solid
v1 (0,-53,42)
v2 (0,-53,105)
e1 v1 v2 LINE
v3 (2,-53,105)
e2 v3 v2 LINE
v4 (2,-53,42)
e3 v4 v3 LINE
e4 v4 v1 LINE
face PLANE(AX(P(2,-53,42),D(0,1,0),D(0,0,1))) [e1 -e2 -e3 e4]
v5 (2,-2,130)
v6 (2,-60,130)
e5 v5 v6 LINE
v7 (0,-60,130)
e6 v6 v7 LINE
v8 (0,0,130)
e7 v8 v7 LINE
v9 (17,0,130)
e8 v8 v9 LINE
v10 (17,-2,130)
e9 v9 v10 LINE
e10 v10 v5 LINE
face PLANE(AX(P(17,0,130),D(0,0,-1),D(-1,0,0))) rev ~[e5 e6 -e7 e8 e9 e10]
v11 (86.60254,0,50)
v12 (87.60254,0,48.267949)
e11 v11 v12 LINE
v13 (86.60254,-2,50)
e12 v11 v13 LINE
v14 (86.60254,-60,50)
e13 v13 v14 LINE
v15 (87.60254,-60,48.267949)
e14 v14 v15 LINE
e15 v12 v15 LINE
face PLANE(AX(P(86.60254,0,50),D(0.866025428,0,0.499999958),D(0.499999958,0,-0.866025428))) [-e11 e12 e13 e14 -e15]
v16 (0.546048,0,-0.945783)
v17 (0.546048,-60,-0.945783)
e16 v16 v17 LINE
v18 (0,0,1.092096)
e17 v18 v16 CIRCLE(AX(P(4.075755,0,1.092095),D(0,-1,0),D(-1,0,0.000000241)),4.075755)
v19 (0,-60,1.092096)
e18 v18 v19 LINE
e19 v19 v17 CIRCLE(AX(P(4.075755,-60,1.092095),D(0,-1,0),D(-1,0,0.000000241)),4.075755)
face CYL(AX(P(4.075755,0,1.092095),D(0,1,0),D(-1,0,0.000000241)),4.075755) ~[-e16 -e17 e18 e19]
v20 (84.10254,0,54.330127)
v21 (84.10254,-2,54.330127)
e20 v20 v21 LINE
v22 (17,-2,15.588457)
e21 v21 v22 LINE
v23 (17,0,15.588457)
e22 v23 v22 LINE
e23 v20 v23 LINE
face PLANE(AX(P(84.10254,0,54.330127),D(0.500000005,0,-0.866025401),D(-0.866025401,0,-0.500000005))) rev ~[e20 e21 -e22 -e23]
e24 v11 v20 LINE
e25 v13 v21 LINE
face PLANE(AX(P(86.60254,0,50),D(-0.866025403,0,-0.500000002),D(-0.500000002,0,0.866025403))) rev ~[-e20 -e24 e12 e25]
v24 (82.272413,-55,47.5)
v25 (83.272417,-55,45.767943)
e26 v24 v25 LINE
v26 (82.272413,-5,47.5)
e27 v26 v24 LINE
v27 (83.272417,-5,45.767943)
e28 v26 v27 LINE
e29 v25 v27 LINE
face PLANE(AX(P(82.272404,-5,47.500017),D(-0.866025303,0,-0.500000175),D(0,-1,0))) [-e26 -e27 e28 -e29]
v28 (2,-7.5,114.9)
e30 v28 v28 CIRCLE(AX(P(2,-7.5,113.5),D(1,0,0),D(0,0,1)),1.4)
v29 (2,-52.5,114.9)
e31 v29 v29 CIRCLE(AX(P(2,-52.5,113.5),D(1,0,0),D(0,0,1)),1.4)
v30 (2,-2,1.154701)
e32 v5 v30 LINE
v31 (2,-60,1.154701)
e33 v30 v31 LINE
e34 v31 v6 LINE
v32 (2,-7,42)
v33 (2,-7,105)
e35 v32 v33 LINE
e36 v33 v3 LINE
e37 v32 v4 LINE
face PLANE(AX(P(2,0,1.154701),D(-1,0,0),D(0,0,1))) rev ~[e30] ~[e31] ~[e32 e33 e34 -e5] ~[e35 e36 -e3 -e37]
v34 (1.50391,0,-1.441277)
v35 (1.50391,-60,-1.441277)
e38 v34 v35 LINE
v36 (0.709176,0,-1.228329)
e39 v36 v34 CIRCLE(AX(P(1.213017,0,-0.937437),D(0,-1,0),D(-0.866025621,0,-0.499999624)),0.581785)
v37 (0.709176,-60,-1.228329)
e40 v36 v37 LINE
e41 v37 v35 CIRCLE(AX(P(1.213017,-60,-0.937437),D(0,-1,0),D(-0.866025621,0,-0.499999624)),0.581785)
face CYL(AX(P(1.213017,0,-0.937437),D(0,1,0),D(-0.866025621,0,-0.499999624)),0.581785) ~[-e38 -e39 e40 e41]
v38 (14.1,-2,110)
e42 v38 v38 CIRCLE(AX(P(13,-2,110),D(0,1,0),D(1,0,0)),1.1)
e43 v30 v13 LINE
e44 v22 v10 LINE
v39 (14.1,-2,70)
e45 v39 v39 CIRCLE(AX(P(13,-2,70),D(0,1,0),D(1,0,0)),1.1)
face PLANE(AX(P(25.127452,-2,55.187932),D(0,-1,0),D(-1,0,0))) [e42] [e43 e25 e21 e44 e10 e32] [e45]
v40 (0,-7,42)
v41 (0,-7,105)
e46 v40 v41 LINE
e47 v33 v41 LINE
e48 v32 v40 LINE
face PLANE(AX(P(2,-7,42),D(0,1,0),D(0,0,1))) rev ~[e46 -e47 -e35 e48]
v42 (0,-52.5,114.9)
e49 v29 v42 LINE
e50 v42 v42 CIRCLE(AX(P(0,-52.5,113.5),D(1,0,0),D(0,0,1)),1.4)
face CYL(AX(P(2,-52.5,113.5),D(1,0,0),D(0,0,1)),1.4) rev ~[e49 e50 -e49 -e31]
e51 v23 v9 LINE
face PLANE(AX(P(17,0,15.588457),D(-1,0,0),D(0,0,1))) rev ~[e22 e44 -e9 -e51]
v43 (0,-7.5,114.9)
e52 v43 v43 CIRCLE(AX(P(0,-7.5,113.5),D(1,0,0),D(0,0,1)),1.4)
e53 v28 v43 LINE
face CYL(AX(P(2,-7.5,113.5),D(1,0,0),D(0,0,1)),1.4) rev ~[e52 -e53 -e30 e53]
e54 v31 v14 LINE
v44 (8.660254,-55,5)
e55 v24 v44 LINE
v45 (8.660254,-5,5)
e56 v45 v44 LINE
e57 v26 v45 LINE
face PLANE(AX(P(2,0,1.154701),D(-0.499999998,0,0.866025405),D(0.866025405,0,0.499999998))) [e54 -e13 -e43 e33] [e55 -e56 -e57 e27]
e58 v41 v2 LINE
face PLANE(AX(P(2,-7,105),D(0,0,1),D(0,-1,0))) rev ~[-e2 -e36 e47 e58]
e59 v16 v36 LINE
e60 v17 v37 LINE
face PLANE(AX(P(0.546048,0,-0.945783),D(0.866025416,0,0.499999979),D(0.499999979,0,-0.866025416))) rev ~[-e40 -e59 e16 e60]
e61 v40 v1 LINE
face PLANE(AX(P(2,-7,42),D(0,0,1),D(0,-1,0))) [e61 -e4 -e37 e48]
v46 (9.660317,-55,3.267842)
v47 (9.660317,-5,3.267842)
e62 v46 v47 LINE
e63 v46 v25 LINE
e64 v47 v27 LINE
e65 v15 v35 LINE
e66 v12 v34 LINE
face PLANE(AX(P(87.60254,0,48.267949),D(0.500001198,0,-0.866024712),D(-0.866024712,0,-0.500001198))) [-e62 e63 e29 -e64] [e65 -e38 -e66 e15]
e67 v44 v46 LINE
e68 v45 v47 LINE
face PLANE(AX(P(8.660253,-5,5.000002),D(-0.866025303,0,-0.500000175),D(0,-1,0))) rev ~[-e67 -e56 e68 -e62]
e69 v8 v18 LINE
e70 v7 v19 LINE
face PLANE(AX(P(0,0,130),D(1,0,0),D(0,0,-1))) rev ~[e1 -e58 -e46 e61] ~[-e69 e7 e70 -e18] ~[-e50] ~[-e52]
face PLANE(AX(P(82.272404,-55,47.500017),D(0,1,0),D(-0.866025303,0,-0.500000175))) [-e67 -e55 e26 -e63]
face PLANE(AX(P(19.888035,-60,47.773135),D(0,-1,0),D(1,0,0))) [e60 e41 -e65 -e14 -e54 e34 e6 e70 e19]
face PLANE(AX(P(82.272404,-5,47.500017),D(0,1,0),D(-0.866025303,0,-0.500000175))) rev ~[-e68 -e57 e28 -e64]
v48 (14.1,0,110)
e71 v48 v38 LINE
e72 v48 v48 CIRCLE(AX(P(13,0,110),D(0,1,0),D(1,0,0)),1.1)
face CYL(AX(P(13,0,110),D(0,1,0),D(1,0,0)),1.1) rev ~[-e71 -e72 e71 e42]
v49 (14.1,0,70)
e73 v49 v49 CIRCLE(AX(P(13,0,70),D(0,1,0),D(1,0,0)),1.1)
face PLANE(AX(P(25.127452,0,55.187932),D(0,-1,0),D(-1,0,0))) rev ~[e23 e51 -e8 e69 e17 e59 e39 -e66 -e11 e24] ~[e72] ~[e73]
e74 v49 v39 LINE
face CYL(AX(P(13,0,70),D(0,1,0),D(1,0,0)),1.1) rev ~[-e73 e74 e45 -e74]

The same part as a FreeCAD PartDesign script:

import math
import FreeCAD as App
import Part
import Sketcher
from FreeCAD import Vector
Q = App.Units.Quantity

doc = App.newDocument("Part")
body = doc.addObject("PartDesign::Body", "Body")

sketch1 = body.newObject("Sketcher::SketchObject", "Sketch")
sketch1.AttachmentSupport = (doc.getObject("XZ_Plane"), [""])
sketch1.MapMode = "FlatFace"
sketch1.addGeometry([
    Part.LineSegment(Vector(2, 130, 0), Vector(0, 130, 0)),
    Part.LineSegment(Vector(0, 130, 0), Vector(0, 1.092096, 0)),
    Part.ArcOfCircle(Part.Circle(Vector(4.075755, 1.092095, 0), Vector(0, 0, 1), 4.075755), math.radians(179.999986), math.radians(210.000012)),
    Part.LineSegment(Vector(0.546048, -0.945783, 0), Vector(0.709176, -1.228329, 0)),
    Part.ArcOfCircle(Part.Circle(Vector(1.213017, -0.937437, 0), Vector(0, 0, 1), 0.581785), math.radians(-150.000025), math.radians(-59.99993)),
    Part.LineSegment(Vector(1.50391, -1.441277, 0), Vector(87.60254, 48.267949, 0)),
    Part.LineSegment(Vector(87.60254, 48.267949, 0), Vector(86.60254, 50, 0)),
    Part.LineSegment(Vector(86.60254, 50, 0), Vector(2, 1.154701, 0)),
    Part.LineSegment(Vector(2, 1.154701, 0), Vector(2, 130, 0)),
], False)
sketch1.addConstraint([
    Sketcher.Constraint("Coincident", 0, 2, 1, 1),
    Sketcher.Constraint("Coincident", 1, 2, 2, 1),
    Sketcher.Constraint("Coincident", 2, 2, 3, 1),
    Sketcher.Constraint("Coincident", 3, 2, 4, 1),
    Sketcher.Constraint("Coincident", 4, 2, 5, 1),
    Sketcher.Constraint("Coincident", 5, 2, 6, 1),
    Sketcher.Constraint("Coincident", 6, 2, 7, 1),
    Sketcher.Constraint("Coincident", 7, 2, 8, 1),
    Sketcher.Constraint("Coincident", 8, 2, 0, 1),
    Sketcher.Constraint("Horizontal", 0),
    Sketcher.Constraint("Vertical", 1),
    Sketcher.Constraint("Vertical", 8),
    Sketcher.Constraint("PointOnObject", 0, 2, -2),
    Sketcher.Constraint("DistanceX", 0, 2, 0, 1, Q("2 mm")),
    Sketcher.Constraint("Distance", 6, Q("2 mm")),
    Sketcher.Constraint("DistanceY", -1, 1, 0, 2, Q("130 mm")),
    Sketcher.Constraint("DistanceY", -1, 1, 6, 2, Q("50 mm")),
    Sketcher.Constraint("DistanceX", 6, 2, 5, 2, Q("1 mm")),
    Sketcher.Constraint("DistanceY", 8, 1, 8, 2, Q("128.845299 mm")),
    Sketcher.Constraint("Radius", 2, Q("4.075755 mm")),
    Sketcher.Constraint("Radius", 4, Q("0.581785 mm")),
    Sketcher.Constraint("Distance", 7, Q("97.690598 mm")),
    Sketcher.Constraint("DistanceY", 1, 2, 1, 1, Q("128.907904 mm")),
    Sketcher.Constraint("DistanceX", -1, 1, 2, 2, Q("0.546048 mm")),
    Sketcher.Constraint("DistanceY", 3, 2, -1, 1, Q("1.228329 mm")),
    Sketcher.Constraint("DistanceX", -1, 1, 4, 2, Q("1.50391 mm")),
    Sketcher.Constraint("DistanceY", 4, 3, 2, 3, Q("2.029532 mm")),
    Sketcher.Constraint("DistanceX", 2, 2, 4, 3, Q("0.666969 mm")),
    Sketcher.Constraint("DistanceY", 2, 2, 1, 2, Q("2.037879 mm")),
])
pad1 = body.newObject("PartDesign::Pad", "Pad")
pad1.Profile = sketch1
pad1.Length = 60

sketch2 = body.newObject("Sketcher::SketchObject", "Sketch001")
sketch2.AttachmentSupport = (doc.getObject("YZ_Plane"), [""])
sketch2.MapMode = "FlatFace"
sketch2.AttachmentOffset = App.Placement(Vector(0, 0, 2), App.Rotation())
sketch2.addGeometry([
    Part.Circle(Vector(-52.5, 113.5, 0), Vector(0, 0, 1), 1.4),
    Part.Circle(Vector(-7.5, 113.5, 0), Vector(0, 0, 1), 1.4),
    Part.LineSegment(Vector(-53, 42, 0), Vector(-7, 42, 0)),
    Part.LineSegment(Vector(-7, 42, 0), Vector(-7, 105, 0)),
    Part.LineSegment(Vector(-7, 105, 0), Vector(-53, 105, 0)),
    Part.LineSegment(Vector(-53, 105, 0), Vector(-53, 42, 0)),
], False)
sketch2.addConstraint([
    Sketcher.Constraint("Coincident", 2, 2, 3, 1),
    Sketcher.Constraint("Coincident", 3, 2, 4, 1),
    Sketcher.Constraint("Coincident", 4, 2, 5, 1),
    Sketcher.Constraint("Coincident", 5, 2, 2, 1),
    Sketcher.Constraint("Horizontal", 2),
    Sketcher.Constraint("Vertical", 3),
    Sketcher.Constraint("Horizontal", 4),
    Sketcher.Constraint("Vertical", 5),
    Sketcher.Constraint("Equal", 0, 1),
    Sketcher.Constraint("Horizontal", 0, 3, 1, 3),
    Sketcher.Constraint("Diameter", 0, Q("2.8 mm")),
    Sketcher.Constraint("DistanceX", 2, 1, 2, 2, Q("46 mm")),
    Sketcher.Constraint("DistanceY", 3, 1, 3, 2, Q("63 mm")),
    Sketcher.Constraint("DistanceX", 2, 2, -1, 1, Q("7 mm")),
    Sketcher.Constraint("DistanceY", -1, 1, 2, 2, Q("42 mm")),
    Sketcher.Constraint("DistanceX", 0, 3, 1, 3, Q("45 mm")),
    Sketcher.Constraint("DistanceX", 0, 3, -1, 1, Q("52.5 mm")),
    Sketcher.Constraint("DistanceY", -1, 1, 0, 3, Q("113.5 mm")),
])
pocket1 = body.newObject("PartDesign::Pocket", "Pocket")
pocket1.Profile = sketch2
pocket1.Length = 2

sketch3 = body.newObject("Sketcher::SketchObject", "Sketch002")
sketch3.Placement = App.Placement(Vector(0, 0, 0), App.Rotation(Vector(-0.866025303, 0, -0.500000175), Vector(0, -1, 0), Vector(-0.500000175, 0, 0.866025303), "ZXY"))
sketch3.addGeometry([
    Part.LineSegment(Vector(-95, 55, 0), Vector(-95, 5, 0)),
    Part.LineSegment(Vector(-95, 5, 0), Vector(-10, 5, 0)),
    Part.LineSegment(Vector(-10, 5, 0), Vector(-10, 55, 0)),
    Part.LineSegment(Vector(-10, 55, 0), Vector(-95, 55, 0)),
], False)
sketch3.addConstraint([
    Sketcher.Constraint("Coincident", 0, 2, 1, 1),
    Sketcher.Constraint("Coincident", 1, 2, 2, 1),
    Sketcher.Constraint("Coincident", 2, 2, 3, 1),
    Sketcher.Constraint("Coincident", 3, 2, 0, 1),
    Sketcher.Constraint("Vertical", 0),
    Sketcher.Constraint("Horizontal", 1),
    Sketcher.Constraint("Vertical", 2),
    Sketcher.Constraint("Horizontal", 3),
    Sketcher.Constraint("DistanceX", 1, 1, 1, 2, Q("85 mm")),
    Sketcher.Constraint("DistanceY", 0, 2, 0, 1, Q("50 mm")),
    Sketcher.Constraint("DistanceX", 0, 2, -1, 1, Q("95 mm")),
    Sketcher.Constraint("DistanceY", -1, 1, 0, 2, Q("5 mm")),
])
pocket2 = body.newObject("PartDesign::Pocket", "Pocket001")
pocket2.Profile = sketch3
pocket2.Length = 2.1

sketch4 = body.newObject("Sketcher::SketchObject", "Sketch003")
sketch4.AttachmentSupport = (doc.getObject("XZ_Plane"), [""])
sketch4.MapMode = "FlatFace"
sketch4.addGeometry([
    Part.LineSegment(Vector(86.60254, 50, 0), Vector(2, 1.154701, 0)),
    Part.LineSegment(Vector(2, 1.154701, 0), Vector(2, 130, 0)),
    Part.LineSegment(Vector(2, 130, 0), Vector(17, 130, 0)),
    Part.LineSegment(Vector(17, 130, 0), Vector(17, 15.588457, 0)),
    Part.LineSegment(Vector(17, 15.588457, 0), Vector(84.10254, 54.330127, 0)),
    Part.LineSegment(Vector(84.10254, 54.330127, 0), Vector(86.60254, 50, 0)),
    Part.Circle(Vector(13, 110, 0), Vector(0, 0, 1), 1.1),
    Part.Circle(Vector(13, 70, 0), Vector(0, 0, 1), 1.1),
], False)
sketch4.addConstraint([
    Sketcher.Constraint("Coincident", 0, 2, 1, 1),
    Sketcher.Constraint("Coincident", 1, 2, 2, 1),
    Sketcher.Constraint("Coincident", 2, 2, 3, 1),
    Sketcher.Constraint("Coincident", 3, 2, 4, 1),
    Sketcher.Constraint("Coincident", 4, 2, 5, 1),
    Sketcher.Constraint("Coincident", 5, 2, 0, 1),
    Sketcher.Constraint("Vertical", 1),
    Sketcher.Constraint("Horizontal", 2),
    Sketcher.Constraint("Vertical", 3),
    Sketcher.Constraint("Equal", 6, 7),
    Sketcher.Constraint("Parallel", 0, 4),
    Sketcher.Constraint("Perpendicular", 4, 5),
    Sketcher.Constraint("Vertical", 6, 3, 7, 3),
    Sketcher.Constraint("Diameter", 6, Q("2.2 mm")),
    Sketcher.Constraint("DistanceX", 2, 1, 2, 2, Q("15 mm")),
    Sketcher.Constraint("Angle", 0, Q("-150 deg")),
    Sketcher.Constraint("Distance", 5, Q("5 mm")),
    Sketcher.Constraint("DistanceX", -1, 1, 6, 3, Q("13 mm")),
    Sketcher.Constraint("DistanceY", -1, 1, 6, 3, Q("110 mm")),
    Sketcher.Constraint("DistanceY", -1, 1, 7, 3, Q("70 mm")),
    Sketcher.Constraint("DistanceX", -1, 1, 0, 2, Q("2 mm")),
    Sketcher.Constraint("DistanceY", -1, 1, 1, 2, Q("130 mm")),
    Sketcher.Constraint("DistanceY", -1, 1, 5, 2, Q("50 mm")),
    Sketcher.Constraint("DistanceY", 1, 1, 1, 2, Q("128.845299 mm")),
])
pad2 = body.newObject("PartDesign::Pad", "Pad001")
pad2.Profile = sketch4
pad2.Length = 2

doc.recompute()
